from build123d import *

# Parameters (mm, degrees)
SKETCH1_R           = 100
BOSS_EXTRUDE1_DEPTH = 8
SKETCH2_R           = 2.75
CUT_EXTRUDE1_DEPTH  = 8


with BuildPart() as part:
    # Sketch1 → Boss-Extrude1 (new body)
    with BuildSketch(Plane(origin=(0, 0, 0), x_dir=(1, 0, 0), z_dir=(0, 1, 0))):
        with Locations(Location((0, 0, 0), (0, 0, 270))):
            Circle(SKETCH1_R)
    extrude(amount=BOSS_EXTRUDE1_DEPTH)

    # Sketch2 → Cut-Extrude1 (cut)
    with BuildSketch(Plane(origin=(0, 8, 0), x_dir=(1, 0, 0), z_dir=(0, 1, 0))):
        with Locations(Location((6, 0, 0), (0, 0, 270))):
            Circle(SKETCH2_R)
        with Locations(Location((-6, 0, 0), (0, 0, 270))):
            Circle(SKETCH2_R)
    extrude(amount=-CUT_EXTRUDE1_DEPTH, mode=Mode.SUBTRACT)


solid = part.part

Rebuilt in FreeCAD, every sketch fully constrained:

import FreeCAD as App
import Part
import Sketcher

V = App.Vector
Q = App.Units.Quantity

doc = App.newDocument("Part")
body = doc.addObject("PartDesign::Body", "Body")

# Sketch on XZ plane
sketch1 = body.newObject("Sketcher::SketchObject", "Sketch")
sketch1.AttachmentSupport = (doc.getObject("XZ_Plane"), [""])
sketch1.MapMode = "FlatFace"
sketch1.addGeometry(Part.Circle(V(0, 0, 0), V(0, 0, 1), 100), False)
sketch1.addConstraint([
    Sketcher.Constraint("Coincident", 0, 3, -1, 1),
    Sketcher.Constraint("Diameter", 0, Q("200 mm")),
])
pad1 = body.newObject("PartDesign::Pad", "Pad")
pad1.Profile = sketch1
pad1.Length = 8
pad1.Reversed = True

# Sketch on XZ plane
sketch2 = body.newObject("Sketcher::SketchObject", "Sketch001")
sketch2.AttachmentSupport = (doc.getObject("XZ_Plane"), [""])
sketch2.MapMode = "FlatFace"
sketch2.AttachmentOffset = App.Placement(V(0, 0, -8), App.Rotation())
sketch2.addGeometry([
    Part.Circle(V(6, 0, 0), V(0, 0, 1), 2.8),
    Part.Circle(V(-6, 0, 0), V(0, 0, 1), 2.8),
], False)
sketch2.addConstraint([
    Sketcher.Constraint("Equal", 0, 1),
    Sketcher.Constraint("Symmetric", 0, 3, 1, 3, -1, 1),
    Sketcher.Constraint("PointOnObject", 0, 3, -1),
    Sketcher.Constraint("Diameter", 0, Q("5.5 mm")),
    Sketcher.Constraint("DistanceX", -1, 1, 0, 3, Q("6 mm")),
])
pocket1 = body.newObject("PartDesign::Pocket", "Pocket")
pocket1.Profile = sketch2
pocket1.Length = 8
pocket1.Reversed = True

doc.recompute()
